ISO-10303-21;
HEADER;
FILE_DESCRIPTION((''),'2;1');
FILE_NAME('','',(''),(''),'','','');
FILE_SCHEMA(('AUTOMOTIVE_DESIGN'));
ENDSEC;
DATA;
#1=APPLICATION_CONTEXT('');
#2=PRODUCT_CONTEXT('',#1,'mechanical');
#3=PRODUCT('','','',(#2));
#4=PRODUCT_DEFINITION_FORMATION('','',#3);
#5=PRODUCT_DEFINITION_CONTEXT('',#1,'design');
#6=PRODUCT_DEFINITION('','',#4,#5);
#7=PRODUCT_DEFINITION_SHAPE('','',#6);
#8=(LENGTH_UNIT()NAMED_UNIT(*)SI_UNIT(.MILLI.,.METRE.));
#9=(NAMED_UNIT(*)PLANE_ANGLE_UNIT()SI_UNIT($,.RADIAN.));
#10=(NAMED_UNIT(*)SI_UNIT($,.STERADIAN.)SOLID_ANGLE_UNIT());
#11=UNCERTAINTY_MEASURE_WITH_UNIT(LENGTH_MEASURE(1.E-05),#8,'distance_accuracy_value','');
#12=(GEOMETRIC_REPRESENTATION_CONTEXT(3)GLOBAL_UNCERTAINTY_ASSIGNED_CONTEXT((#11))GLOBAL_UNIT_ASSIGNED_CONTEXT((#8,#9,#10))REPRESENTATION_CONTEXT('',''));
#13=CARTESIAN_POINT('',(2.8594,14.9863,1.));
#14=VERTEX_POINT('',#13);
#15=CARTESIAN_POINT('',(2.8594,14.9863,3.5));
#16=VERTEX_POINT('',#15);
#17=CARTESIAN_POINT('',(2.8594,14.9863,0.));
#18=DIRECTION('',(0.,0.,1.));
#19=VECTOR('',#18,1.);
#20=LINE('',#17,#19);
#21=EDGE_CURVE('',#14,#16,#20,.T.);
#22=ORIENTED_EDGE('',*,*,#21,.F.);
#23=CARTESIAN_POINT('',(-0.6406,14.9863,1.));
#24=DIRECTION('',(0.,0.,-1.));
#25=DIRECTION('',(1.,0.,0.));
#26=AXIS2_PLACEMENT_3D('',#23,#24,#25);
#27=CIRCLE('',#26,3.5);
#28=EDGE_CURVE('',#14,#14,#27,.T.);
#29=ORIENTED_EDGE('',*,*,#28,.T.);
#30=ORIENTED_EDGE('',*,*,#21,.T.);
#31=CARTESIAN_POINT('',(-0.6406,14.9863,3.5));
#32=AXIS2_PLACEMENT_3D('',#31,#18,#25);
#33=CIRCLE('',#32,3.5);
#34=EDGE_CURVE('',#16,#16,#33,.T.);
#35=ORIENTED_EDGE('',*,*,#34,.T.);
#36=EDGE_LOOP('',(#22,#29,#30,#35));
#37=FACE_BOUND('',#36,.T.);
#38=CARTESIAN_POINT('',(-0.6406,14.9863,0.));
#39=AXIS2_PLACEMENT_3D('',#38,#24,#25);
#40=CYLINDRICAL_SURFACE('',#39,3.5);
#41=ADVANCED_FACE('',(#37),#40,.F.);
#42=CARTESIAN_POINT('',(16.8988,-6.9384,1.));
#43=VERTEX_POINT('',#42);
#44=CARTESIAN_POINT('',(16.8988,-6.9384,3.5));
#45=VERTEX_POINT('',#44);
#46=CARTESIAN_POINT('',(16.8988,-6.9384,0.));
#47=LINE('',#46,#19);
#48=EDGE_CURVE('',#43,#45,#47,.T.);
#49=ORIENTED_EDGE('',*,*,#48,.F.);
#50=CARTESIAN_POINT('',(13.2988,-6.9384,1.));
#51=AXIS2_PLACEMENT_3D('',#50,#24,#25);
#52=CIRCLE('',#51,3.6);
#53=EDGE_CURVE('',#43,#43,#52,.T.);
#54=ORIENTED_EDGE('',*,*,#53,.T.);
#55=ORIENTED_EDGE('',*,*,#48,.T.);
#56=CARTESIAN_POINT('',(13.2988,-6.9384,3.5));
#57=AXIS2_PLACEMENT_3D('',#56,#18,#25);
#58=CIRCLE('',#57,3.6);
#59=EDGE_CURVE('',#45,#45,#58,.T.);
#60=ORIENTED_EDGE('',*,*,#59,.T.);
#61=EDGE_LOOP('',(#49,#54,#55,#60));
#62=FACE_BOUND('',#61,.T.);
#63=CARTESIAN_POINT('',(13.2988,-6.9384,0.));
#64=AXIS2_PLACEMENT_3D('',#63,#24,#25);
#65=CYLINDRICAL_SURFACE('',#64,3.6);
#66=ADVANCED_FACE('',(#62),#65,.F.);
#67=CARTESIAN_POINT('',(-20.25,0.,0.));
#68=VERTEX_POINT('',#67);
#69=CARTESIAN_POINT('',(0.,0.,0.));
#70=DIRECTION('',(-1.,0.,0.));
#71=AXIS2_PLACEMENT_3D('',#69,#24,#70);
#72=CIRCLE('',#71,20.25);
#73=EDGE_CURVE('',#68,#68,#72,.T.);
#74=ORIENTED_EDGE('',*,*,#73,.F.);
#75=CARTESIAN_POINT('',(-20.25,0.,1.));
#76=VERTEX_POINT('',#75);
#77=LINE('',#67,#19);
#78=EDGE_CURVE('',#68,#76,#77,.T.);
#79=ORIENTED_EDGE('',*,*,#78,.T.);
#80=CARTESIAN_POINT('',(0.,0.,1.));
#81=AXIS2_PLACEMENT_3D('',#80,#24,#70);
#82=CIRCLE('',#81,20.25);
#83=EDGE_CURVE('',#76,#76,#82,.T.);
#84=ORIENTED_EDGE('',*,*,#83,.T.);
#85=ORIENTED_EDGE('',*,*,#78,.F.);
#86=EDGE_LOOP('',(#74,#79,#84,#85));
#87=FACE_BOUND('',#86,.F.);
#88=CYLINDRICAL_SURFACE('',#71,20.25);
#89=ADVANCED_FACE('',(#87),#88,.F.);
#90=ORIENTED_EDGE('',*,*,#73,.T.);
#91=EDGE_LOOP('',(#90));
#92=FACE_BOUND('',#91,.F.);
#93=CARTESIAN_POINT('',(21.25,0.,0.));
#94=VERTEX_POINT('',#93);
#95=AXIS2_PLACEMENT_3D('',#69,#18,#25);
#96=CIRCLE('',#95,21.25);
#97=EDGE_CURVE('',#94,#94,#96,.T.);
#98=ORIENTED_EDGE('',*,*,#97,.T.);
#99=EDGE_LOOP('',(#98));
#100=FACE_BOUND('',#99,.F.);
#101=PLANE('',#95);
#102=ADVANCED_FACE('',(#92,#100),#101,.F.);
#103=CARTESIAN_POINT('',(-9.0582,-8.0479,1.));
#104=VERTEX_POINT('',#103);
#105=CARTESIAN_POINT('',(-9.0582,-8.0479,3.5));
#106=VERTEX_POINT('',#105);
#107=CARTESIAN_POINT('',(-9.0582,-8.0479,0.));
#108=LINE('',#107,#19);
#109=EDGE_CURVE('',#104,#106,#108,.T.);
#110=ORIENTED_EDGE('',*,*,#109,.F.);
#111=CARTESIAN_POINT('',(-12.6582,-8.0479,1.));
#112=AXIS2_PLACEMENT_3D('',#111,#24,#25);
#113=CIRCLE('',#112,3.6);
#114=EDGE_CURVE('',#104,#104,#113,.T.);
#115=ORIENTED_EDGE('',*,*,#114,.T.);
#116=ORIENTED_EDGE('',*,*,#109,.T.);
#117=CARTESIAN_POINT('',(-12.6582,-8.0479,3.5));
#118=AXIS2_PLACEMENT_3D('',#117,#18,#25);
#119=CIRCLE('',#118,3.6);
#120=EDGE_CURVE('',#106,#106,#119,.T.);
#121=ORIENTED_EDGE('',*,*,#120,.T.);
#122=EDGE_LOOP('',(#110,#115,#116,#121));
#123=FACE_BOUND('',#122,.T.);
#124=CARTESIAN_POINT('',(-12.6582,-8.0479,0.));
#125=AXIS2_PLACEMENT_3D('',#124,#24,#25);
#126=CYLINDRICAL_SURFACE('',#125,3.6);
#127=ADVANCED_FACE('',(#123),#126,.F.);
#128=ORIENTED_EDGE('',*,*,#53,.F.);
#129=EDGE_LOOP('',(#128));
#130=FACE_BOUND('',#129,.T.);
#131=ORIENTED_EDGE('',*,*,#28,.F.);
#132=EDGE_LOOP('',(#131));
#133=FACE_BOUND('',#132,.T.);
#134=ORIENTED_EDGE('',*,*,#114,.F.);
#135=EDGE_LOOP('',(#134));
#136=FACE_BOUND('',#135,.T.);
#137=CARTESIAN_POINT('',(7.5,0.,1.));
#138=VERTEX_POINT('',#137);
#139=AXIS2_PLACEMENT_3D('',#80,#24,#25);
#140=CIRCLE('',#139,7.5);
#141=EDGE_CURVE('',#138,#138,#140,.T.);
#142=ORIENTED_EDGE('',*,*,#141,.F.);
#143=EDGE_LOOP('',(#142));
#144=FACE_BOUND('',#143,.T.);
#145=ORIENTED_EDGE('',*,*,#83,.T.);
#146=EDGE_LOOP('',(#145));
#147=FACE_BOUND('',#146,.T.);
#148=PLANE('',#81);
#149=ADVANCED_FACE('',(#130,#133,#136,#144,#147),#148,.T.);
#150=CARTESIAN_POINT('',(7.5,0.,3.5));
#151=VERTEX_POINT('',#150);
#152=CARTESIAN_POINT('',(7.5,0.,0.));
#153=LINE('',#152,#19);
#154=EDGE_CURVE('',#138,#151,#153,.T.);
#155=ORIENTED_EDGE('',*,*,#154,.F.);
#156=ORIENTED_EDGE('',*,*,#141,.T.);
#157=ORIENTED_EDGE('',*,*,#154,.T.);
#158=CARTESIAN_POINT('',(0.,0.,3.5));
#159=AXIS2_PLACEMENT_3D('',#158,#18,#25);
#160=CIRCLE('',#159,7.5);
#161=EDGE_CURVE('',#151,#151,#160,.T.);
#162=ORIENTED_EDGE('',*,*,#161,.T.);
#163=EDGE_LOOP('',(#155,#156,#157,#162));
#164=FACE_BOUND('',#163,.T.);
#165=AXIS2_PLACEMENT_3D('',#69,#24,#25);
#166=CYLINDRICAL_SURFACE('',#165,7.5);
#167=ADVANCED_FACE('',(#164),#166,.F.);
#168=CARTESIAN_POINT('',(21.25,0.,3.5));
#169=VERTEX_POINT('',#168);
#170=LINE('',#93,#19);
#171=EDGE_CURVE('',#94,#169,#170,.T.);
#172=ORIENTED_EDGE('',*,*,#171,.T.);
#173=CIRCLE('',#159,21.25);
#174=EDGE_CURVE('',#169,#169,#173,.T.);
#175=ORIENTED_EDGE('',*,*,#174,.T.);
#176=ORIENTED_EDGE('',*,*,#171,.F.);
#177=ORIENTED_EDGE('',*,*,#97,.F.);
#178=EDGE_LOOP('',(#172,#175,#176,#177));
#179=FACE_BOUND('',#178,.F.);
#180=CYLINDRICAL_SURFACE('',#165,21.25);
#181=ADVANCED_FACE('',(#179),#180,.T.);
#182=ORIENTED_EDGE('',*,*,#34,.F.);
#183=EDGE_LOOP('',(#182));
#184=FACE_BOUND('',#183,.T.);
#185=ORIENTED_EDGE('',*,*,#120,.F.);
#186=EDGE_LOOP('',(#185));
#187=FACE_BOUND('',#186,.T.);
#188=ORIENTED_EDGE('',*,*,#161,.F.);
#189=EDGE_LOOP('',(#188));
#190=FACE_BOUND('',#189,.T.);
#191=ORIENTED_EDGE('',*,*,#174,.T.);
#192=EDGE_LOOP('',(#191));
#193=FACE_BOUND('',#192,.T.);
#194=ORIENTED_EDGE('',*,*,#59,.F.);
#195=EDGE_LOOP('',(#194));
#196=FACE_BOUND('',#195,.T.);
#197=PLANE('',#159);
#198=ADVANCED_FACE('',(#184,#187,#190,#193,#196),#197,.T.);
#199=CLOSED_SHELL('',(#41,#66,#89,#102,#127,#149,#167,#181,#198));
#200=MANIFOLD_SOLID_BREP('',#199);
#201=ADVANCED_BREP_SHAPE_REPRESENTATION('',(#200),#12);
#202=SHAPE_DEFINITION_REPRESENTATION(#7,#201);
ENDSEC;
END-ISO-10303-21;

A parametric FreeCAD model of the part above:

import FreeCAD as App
import Part
import Sketcher
Q = App.Units.Quantity

doc = App.newDocument("Part")
params = doc.addObject("Spreadsheet::Sheet", "Params")
for row, (alias, value) in enumerate([
    ("sketch1_diameter", "42.5 mm"),
    ("sketch1_diameter2", "7 mm"),
    ("sketch1_diameter3", "15 mm"),
    ("sketch1_diameter4", "7.2 mm"),
    ("pad1_length", "3.5 mm"),
    ("sketch2_diameter", "40.5 mm"),
    ("pocket1_length", "1 mm"),
], start=1):
    params.set(f"A{row}", alias)
    params.set(f"B{row}", "=" + value)
    params.setAlias(f"B{row}", alias)

body = doc.addObject("PartDesign::Body", "Body")

sketch1 = body.newObject("Sketcher::SketchObject", "Sketch")
sketch1.AttachmentSupport = (doc.getObject("XY_Plane"), [""])
sketch1.MapMode = "FlatFace"
sketch1.addGeometry([
    Part.Circle(App.Vector(0, 0, 0), App.Vector(0, 0, 1), 21.2),
    Part.Circle(App.Vector(-12.7, -8, 0), App.Vector(0, 0, 1), 3.6),
    Part.Circle(App.Vector(13.3, -6.9, 0), App.Vector(0, 0, 1), 3.6),
    Part.Circle(App.Vector(-0.6, 15, 0), App.Vector(0, 0, 1), 3.5),
    Part.Circle(App.Vector(0, 0, 0), App.Vector(0, 0, 1), 7.5),
], False)
sketch1.addConstraint([
    Sketcher.Constraint("Coincident", 0, 3, -1, 1),
    Sketcher.Constraint("Coincident", 4, 3, -1, 1),
    Sketcher.Constraint("Equal", 1, 2),
    Sketcher.Constraint("Diameter", 0, Q("42.5 mm")),
    Sketcher.Constraint("Diameter", 3, Q("7 mm")),
    Sketcher.Constraint("Diameter", 4, Q("15 mm")),
    Sketcher.Constraint("Diameter", 1, Q("7.2 mm")),
    Sketcher.Constraint("DistanceY", 1, 3, -1, 1, Q("8.048 mm")),
    Sketcher.Constraint("DistanceX", 1, 3, 2, 3, Q("25.957 mm")),
    Sketcher.Constraint("DistanceX", 1, 3, -1, 1, Q("12.6582 mm")),
    Sketcher.Constraint("DistanceY", 2, 3, -1, 1, Q("6.9384 mm")),
    Sketcher.Constraint("DistanceX", 3, 3, -1, 1, Q("0.6406 mm")),
    Sketcher.Constraint("DistanceY", -1, 1, 3, 3, Q("14.9863 mm")),
])
sketch1.setExpression("Constraints[3]", "Params.sketch1_diameter")
sketch1.setExpression("Constraints[4]", "Params.sketch1_diameter2")
sketch1.setExpression("Constraints[5]", "Params.sketch1_diameter3")
sketch1.setExpression("Constraints[6]", "Params.sketch1_diameter4")
pad1 = body.newObject("PartDesign::Pad", "Pad")
pad1.Profile = sketch1
pad1.setExpression("Length", "Params.pad1_length")

sketch2 = body.newObject("Sketcher::SketchObject", "Sketch001")
sketch2.AttachmentSupport = (doc.getObject("XY_Plane"), [""])
sketch2.MapMode = "FlatFace"
sketch2.addGeometry(Part.Circle(App.Vector(0, 0, 0), App.Vector(0, 0, 1), 20), False)
sketch2.addConstraint([
    Sketcher.Constraint("Coincident", 0, 3, -1, 1),
    Sketcher.Constraint("Diameter", 0, Q("40.5 mm")),
])
sketch2.setExpression("Constraints[1]", "Params.sketch2_diameter")
pocket1 = body.newObject("PartDesign::Pocket", "Pocket")
pocket1.Profile = sketch2
pocket1.setExpression("Length", "Params.pocket1_length")
pocket1.Reversed = True

doc.recompute()
